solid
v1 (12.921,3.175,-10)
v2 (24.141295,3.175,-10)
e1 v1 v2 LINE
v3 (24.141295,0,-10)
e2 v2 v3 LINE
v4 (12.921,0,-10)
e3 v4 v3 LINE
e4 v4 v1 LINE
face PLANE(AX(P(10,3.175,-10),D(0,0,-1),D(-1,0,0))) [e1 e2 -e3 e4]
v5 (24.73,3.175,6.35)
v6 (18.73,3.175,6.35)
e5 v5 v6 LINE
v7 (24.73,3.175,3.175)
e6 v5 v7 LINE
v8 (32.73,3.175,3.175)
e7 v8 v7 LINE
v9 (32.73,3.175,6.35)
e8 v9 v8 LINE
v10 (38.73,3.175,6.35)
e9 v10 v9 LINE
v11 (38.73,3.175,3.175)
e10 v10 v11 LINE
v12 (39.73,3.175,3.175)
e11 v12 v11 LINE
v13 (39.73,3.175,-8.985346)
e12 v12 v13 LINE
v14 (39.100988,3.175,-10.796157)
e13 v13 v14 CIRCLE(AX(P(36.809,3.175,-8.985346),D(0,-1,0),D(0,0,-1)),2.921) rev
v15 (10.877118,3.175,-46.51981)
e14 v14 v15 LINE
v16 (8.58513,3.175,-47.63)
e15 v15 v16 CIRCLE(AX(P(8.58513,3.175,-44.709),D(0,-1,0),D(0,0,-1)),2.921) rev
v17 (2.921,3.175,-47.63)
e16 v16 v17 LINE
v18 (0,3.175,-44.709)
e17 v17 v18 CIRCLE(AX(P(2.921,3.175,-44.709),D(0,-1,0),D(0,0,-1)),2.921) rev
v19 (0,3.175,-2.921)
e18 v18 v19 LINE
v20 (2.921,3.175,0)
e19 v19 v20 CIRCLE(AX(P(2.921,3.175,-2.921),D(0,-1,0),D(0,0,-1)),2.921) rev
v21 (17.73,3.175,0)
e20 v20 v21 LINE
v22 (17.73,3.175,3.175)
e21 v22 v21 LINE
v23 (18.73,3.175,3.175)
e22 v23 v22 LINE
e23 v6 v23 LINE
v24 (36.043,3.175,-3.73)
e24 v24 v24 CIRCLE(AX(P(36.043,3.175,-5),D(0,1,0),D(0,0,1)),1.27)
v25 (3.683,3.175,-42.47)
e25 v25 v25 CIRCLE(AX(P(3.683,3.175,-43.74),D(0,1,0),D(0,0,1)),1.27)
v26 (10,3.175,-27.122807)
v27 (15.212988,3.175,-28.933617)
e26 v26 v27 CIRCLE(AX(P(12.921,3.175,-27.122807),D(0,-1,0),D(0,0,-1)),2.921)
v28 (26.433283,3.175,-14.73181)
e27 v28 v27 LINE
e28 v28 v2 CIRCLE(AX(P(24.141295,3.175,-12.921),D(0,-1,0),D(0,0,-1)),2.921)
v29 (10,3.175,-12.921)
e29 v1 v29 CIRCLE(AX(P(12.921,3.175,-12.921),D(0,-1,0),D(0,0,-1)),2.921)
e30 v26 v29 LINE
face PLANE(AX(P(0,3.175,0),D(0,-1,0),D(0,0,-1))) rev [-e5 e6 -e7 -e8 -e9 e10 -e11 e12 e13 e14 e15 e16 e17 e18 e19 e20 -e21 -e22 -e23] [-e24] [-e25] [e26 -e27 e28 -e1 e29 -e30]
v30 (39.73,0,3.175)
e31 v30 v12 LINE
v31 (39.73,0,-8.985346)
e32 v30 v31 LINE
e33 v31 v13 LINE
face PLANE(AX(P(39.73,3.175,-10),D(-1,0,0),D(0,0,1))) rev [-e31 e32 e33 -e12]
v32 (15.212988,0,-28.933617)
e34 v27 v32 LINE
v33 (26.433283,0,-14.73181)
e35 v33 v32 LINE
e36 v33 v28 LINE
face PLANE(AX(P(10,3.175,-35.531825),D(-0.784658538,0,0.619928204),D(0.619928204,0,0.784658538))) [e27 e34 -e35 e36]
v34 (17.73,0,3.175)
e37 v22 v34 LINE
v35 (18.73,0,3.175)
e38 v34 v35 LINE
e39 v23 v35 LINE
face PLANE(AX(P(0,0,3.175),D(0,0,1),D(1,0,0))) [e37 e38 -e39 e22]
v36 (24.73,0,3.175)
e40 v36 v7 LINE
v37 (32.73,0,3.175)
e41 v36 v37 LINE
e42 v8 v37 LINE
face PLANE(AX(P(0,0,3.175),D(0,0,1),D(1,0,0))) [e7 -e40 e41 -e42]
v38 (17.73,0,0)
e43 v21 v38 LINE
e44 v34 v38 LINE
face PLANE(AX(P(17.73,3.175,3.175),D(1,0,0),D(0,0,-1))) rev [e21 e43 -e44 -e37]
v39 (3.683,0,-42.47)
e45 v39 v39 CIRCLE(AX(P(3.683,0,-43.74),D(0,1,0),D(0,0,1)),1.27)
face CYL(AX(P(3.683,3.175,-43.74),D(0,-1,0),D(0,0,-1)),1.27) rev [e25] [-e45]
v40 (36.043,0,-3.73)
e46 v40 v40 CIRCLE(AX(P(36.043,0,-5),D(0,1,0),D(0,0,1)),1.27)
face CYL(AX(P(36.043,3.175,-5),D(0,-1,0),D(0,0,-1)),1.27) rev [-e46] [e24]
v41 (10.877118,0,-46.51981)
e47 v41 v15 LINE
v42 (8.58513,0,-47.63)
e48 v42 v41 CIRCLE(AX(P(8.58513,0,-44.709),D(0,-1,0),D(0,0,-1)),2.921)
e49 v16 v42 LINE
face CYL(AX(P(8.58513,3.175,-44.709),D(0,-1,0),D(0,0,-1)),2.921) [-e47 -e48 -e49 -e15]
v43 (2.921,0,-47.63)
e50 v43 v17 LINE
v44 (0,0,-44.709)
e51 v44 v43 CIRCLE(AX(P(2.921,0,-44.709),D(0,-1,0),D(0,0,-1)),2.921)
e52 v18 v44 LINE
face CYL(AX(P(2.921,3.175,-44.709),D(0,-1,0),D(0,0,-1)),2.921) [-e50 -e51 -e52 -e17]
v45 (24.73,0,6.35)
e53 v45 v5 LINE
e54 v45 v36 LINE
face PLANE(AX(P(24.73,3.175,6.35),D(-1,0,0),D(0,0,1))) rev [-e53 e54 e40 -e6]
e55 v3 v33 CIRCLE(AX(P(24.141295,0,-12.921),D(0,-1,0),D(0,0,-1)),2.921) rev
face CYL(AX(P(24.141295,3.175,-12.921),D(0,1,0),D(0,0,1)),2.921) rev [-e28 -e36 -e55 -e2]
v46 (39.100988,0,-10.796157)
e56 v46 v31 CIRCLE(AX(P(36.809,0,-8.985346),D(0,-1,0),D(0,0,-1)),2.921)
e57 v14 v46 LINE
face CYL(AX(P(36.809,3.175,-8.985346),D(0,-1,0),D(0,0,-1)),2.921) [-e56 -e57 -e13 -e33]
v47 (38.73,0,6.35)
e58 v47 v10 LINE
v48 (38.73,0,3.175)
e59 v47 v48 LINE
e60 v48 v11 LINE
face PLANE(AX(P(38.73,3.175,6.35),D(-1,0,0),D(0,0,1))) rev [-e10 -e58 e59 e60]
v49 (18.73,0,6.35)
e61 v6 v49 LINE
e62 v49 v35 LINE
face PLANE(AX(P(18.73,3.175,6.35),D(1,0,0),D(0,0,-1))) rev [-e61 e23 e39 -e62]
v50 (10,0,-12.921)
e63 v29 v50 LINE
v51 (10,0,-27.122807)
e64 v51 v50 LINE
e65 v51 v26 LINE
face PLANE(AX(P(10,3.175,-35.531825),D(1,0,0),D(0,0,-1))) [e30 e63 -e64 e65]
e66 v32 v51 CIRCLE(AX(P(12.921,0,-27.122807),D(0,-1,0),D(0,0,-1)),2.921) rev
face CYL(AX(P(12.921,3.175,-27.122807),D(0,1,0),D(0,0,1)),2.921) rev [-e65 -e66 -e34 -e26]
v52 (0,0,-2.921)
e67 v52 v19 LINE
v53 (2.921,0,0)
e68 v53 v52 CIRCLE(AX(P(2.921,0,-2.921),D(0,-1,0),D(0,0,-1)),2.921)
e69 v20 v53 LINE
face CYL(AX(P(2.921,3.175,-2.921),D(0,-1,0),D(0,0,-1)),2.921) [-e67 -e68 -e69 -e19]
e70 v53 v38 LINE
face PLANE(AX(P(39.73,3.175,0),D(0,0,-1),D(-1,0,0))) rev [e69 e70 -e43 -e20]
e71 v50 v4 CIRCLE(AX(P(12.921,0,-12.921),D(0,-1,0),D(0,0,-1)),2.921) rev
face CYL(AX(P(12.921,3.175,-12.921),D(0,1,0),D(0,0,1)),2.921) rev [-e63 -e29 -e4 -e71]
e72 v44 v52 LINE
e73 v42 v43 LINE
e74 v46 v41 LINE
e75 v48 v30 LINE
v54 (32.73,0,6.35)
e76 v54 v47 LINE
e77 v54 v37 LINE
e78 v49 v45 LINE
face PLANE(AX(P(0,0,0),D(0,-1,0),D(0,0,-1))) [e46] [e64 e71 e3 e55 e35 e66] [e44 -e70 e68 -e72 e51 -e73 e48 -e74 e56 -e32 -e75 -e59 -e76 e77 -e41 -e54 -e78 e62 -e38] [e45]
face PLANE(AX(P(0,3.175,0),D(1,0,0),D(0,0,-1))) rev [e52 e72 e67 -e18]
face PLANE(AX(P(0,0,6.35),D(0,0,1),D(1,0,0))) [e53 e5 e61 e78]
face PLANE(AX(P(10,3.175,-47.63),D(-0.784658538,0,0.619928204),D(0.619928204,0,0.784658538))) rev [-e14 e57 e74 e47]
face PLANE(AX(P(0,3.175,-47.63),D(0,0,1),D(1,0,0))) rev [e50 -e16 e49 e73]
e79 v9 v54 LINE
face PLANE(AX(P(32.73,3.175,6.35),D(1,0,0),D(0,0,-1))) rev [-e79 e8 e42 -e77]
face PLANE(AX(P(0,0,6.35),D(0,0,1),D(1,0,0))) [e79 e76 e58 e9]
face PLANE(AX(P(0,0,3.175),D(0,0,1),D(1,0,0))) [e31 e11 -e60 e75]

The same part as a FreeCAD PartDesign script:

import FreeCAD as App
import Part
import Sketcher
from FreeCAD import Vector
Q = App.Units.Quantity


def edges_at(feature, points):
    """Names of the edges that pass closest to the given points."""
    edges = feature.Shape.Edges
    near = lambda p: min(range(len(edges)), key=lambda i: edges[i].distToShape(Part.Vertex(*p))[0])
    return sorted({f"Edge{near(p) + 1}" for p in points})

doc = App.newDocument("Part")
body = doc.addObject("PartDesign::Body", "Body")

sketch1 = body.newObject("Sketcher::SketchObject", "Sketch")
sketch1.AttachmentSupport = (doc.getObject("XZ_Plane"), [""])
sketch1.MapMode = "FlatFace"
sketch1.addGeometry(Part.LineSegment(Vector(0, -47.6, 0), Vector(0, 0, 0)), False)
sketch1.addGeometry(Part.LineSegment(Vector(0, 0, 0), Vector(39.7, 0, 0)), False)
sketch1.addGeometry(Part.LineSegment(Vector(39.7, 0, 0), Vector(39.7, -10, 0)), False)
sketch1.addGeometry(Part.LineSegment(Vector(39.7, -10, 0), Vector(10, -47.6, 0)), False)
sketch1.addGeometry(Part.LineSegment(Vector(10, -47.6, 0), Vector(0, -47.6, 0)), False)
sketch1.addGeometry(Part.Circle(Vector(36, -5, 0), Vector(0, 0, 1), 1.3), False)
sketch1.addGeometry(Part.LineSegment(Vector(10, -35.5, 0), Vector(30.2, -10, 0)), False)
sketch1.addGeometry(Part.LineSegment(Vector(30.2, -10, 0), Vector(10, -10, 0)), False)
sketch1.addGeometry(Part.LineSegment(Vector(10, -10, 0), Vector(10, -35.5, 0)), False)
sketch1.addGeometry(Part.Circle(Vector(3.7, -43.7, 0), Vector(0, 0, 1), 1.3), False)
sketch1.addConstraint(Sketcher.Constraint("Coincident", 0, 2, 1, 1))
sketch1.addConstraint(Sketcher.Constraint("Coincident", 1, 2, 2, 1))
sketch1.addConstraint(Sketcher.Constraint("Coincident", 2, 2, 3, 1))
sketch1.addConstraint(Sketcher.Constraint("Coincident", 3, 2, 4, 1))
sketch1.addConstraint(Sketcher.Constraint("Coincident", 4, 2, 0, 1))
sketch1.addConstraint(Sketcher.Constraint("Coincident", 6, 2, 7, 1))
sketch1.addConstraint(Sketcher.Constraint("Coincident", 7, 2, 8, 1))
sketch1.addConstraint(Sketcher.Constraint("Coincident", 8, 2, 6, 1))
sketch1.addConstraint(Sketcher.Constraint("Vertical", 0))
sketch1.addConstraint(Sketcher.Constraint("Horizontal", 1))
sketch1.addConstraint(Sketcher.Constraint("Vertical", 2))
sketch1.addConstraint(Sketcher.Constraint("Horizontal", 4))
sketch1.addConstraint(Sketcher.Constraint("Horizontal", 7))
sketch1.addConstraint(Sketcher.Constraint("Vertical", 8))
sketch1.addConstraint(Sketcher.Constraint("Coincident", 0, 2, -1, 1))
sketch1.addConstraint(Sketcher.Constraint("Equal", 5, 9))
sketch1.addConstraint(Sketcher.Constraint("Parallel", 3, 6))
sketch1.addConstraint(Sketcher.Constraint("Horizontal", 2, 2, 6, 2))
sketch1.addConstraint(Sketcher.Constraint("Vertical", 3, 2, 7, 2))
sketch1.addConstraint(Sketcher.Constraint("Equal", 4, 2))
sketch1.addConstraint(Sketcher.Constraint("Diameter", 5, Q("2.54 mm")))
sketch1.addConstraint(Sketcher.Constraint("DistanceX", 4, 2, 4, 1, Q("10 mm")))
sketch1.addConstraint(Sketcher.Constraint("DistanceY", 5, 3, -1, 1, Q("5 mm")))
sketch1.addConstraint(Sketcher.Constraint("DistanceX", 1, 1, 1, 2, Q("39.73 mm")))
sketch1.addConstraint(Sketcher.Constraint("DistanceY", 0, 1, 0, 2, Q("47.63 mm")))
sketch1.addConstraint(Sketcher.Constraint("DistanceY", 9, 3, -1, 1, Q("43.74 mm")))
sketch1.addConstraint(Sketcher.Constraint("DistanceX", 9, 3, 5, 3, Q("32.36 mm")))
sketch1.addConstraint(Sketcher.Constraint("DistanceX", -1, 1, 5, 3, Q("36.043 mm")))
sketch1.addConstraint(Sketcher.Constraint("Distance", 6, Q("32.538771 mm")))
pad1 = body.newObject("PartDesign::Pad", "Pad")
pad1.Profile = sketch1
pad1.Length = 3.175
pad1.Reversed = True
doc.recompute()

fillet = body.newObject("PartDesign::Fillet", "Fillet")
fillet.Base = (pad1, edges_at(pad1, [
    (10, 1.587, -10),
    (30.172, 1.587, -10),
    (10, 1.587, -35.532),
    (0, 1.587, 0),
    (0, 1.587, -47.63),
    (10, 1.587, -47.63),
    (39.73, 1.587, -10),
]))
fillet.Radius = 2.921

sketch2 = body.newObject("Sketcher::SketchObject", "Sketch001")
sketch2.AttachmentSupport = (doc.getObject("XY_Plane"), [""])
sketch2.MapMode = "FlatFace"
sketch2.addGeometry(Part.LineSegment(Vector(17.7, 3.2, 0), Vector(17.7, 0, 0)), False)
sketch2.addGeometry(Part.LineSegment(Vector(17.7, 0, 0), Vector(39.7, 0, 0)), False)
sketch2.addGeometry(Part.LineSegment(Vector(39.7, 0, 0), Vector(39.7, 3.2, 0)), False)
sketch2.addGeometry(Part.LineSegment(Vector(39.7, 3.2, 0), Vector(17.7, 3.2, 0)), False)
sketch2.addConstraint(Sketcher.Constraint("Coincident", 0, 2, 1, 1))
sketch2.addConstraint(Sketcher.Constraint("Coincident", 1, 2, 2, 1))
sketch2.addConstraint(Sketcher.Constraint("Coincident", 2, 2, 3, 1))
sketch2.addConstraint(Sketcher.Constraint("Coincident", 3, 2, 0, 1))
sketch2.addConstraint(Sketcher.Constraint("Vertical", 0))
sketch2.addConstraint(Sketcher.Constraint("Horizontal", 1))
sketch2.addConstraint(Sketcher.Constraint("Vertical", 2))
sketch2.addConstraint(Sketcher.Constraint("Horizontal", 3))
sketch2.addConstraint(Sketcher.Constraint("PointOnObject", 0, 2, -1))
sketch2.addConstraint(Sketcher.Constraint("DistanceX", 1, 1, 1, 2, Q("22 mm")))
sketch2.addConstraint(Sketcher.Constraint("DistanceY", 0, 2, 0, 1, Q("3.175 mm")))
sketch2.addConstraint(Sketcher.Constraint("DistanceX", -1, 1, 0, 2, Q("17.73 mm")))
pad2 = body.newObject("PartDesign::Pad", "Pad001")
pad2.Profile = sketch2
pad2.Length = 3.175

sketch3 = body.newObject("Sketcher::SketchObject", "Sketch002")
sketch3.AttachmentSupport = (doc.getObject("XY_Plane"), [""])
sketch3.MapMode = "FlatFace"
sketch3.AttachmentOffset = App.Placement(Vector(0, 0, 3.175), App.Rotation())
sketch3.addGeometry(Part.LineSegment(Vector(18.7, 3.2, 0), Vector(18.7, 0, 0)), False)
sketch3.addGeometry(Part.LineSegment(Vector(18.7, 0, 0), Vector(24.7, 0, 0)), False)
sketch3.addGeometry(Part.LineSegment(Vector(24.7, 0, 0), Vector(24.7, 3.2, 0)), False)
sketch3.addGeometry(Part.LineSegment(Vector(24.7, 3.2, 0), Vector(18.7, 3.2, 0)), False)
sketch3.addGeometry(Part.LineSegment(Vector(32.7, 3.2, 0), Vector(32.7, 0, 0)), False)
sketch3.addGeometry(Part.LineSegment(Vector(32.7, 0, 0), Vector(38.7, 0, 0)), False)
sketch3.addGeometry(Part.LineSegment(Vector(38.7, 0, 0), Vector(38.7, 3.2, 0)), False)
sketch3.addGeometry(Part.LineSegment(Vector(38.7, 3.2, 0), Vector(32.7, 3.2, 0)), False)
sketch3.addConstraint(Sketcher.Constraint("Coincident", 0, 2, 1, 1))
sketch3.addConstraint(Sketcher.Constraint("Coincident", 1, 2, 2, 1))
sketch3.addConstraint(Sketcher.Constraint("Coincident", 2, 2, 3, 1))
sketch3.addConstraint(Sketcher.Constraint("Coincident", 3, 2, 0, 1))
sketch3.addConstraint(Sketcher.Constraint("Coincident", 4, 2, 5, 1))
sketch3.addConstraint(Sketcher.Constraint("Coincident", 5, 2, 6, 1))
sketch3.addConstraint(Sketcher.Constraint("Coincident", 6, 2, 7, 1))
sketch3.addConstraint(Sketcher.Constraint("Coincident", 7, 2, 4, 1))
sketch3.addConstraint(Sketcher.Constraint("Vertical", 0))
sketch3.addConstraint(Sketcher.Constraint("Horizontal", 1))
sketch3.addConstraint(Sketcher.Constraint("Vertical", 2))
sketch3.addConstraint(Sketcher.Constraint("Horizontal", 3))
sketch3.addConstraint(Sketcher.Constraint("Vertical", 4))
sketch3.addConstraint(Sketcher.Constraint("Horizontal", 5))
sketch3.addConstraint(Sketcher.Constraint("Vertical", 6))
sketch3.addConstraint(Sketcher.Constraint("Horizontal", 7))
sketch3.addConstraint(Sketcher.Constraint("PointOnObject", 0, 2, -1))
sketch3.addConstraint(Sketcher.Constraint("PointOnObject", 4, 2, -1))
sketch3.addConstraint(Sketcher.Constraint("Horizontal", 3, 2, 6, 2))
sketch3.addConstraint(Sketcher.Constraint("Equal", 3, 5))
sketch3.addConstraint(Sketcher.Constraint("DistanceX", 1, 1, 1, 2, Q("6 mm")))
sketch3.addConstraint(Sketcher.Constraint("DistanceX", 1, 2, 4, 2, Q("8 mm")))
sketch3.addConstraint(Sketcher.Constraint("DistanceY", 0, 2, 0, 1, Q("3.175 mm")))
sketch3.addConstraint(Sketcher.Constraint("DistanceX", -1, 1, 0, 2, Q("18.73 mm")))
pad3 = body.newObject("PartDesign::Pad", "Pad002")
pad3.Profile = sketch3
pad3.Length = 3.175

doc.recompute()
